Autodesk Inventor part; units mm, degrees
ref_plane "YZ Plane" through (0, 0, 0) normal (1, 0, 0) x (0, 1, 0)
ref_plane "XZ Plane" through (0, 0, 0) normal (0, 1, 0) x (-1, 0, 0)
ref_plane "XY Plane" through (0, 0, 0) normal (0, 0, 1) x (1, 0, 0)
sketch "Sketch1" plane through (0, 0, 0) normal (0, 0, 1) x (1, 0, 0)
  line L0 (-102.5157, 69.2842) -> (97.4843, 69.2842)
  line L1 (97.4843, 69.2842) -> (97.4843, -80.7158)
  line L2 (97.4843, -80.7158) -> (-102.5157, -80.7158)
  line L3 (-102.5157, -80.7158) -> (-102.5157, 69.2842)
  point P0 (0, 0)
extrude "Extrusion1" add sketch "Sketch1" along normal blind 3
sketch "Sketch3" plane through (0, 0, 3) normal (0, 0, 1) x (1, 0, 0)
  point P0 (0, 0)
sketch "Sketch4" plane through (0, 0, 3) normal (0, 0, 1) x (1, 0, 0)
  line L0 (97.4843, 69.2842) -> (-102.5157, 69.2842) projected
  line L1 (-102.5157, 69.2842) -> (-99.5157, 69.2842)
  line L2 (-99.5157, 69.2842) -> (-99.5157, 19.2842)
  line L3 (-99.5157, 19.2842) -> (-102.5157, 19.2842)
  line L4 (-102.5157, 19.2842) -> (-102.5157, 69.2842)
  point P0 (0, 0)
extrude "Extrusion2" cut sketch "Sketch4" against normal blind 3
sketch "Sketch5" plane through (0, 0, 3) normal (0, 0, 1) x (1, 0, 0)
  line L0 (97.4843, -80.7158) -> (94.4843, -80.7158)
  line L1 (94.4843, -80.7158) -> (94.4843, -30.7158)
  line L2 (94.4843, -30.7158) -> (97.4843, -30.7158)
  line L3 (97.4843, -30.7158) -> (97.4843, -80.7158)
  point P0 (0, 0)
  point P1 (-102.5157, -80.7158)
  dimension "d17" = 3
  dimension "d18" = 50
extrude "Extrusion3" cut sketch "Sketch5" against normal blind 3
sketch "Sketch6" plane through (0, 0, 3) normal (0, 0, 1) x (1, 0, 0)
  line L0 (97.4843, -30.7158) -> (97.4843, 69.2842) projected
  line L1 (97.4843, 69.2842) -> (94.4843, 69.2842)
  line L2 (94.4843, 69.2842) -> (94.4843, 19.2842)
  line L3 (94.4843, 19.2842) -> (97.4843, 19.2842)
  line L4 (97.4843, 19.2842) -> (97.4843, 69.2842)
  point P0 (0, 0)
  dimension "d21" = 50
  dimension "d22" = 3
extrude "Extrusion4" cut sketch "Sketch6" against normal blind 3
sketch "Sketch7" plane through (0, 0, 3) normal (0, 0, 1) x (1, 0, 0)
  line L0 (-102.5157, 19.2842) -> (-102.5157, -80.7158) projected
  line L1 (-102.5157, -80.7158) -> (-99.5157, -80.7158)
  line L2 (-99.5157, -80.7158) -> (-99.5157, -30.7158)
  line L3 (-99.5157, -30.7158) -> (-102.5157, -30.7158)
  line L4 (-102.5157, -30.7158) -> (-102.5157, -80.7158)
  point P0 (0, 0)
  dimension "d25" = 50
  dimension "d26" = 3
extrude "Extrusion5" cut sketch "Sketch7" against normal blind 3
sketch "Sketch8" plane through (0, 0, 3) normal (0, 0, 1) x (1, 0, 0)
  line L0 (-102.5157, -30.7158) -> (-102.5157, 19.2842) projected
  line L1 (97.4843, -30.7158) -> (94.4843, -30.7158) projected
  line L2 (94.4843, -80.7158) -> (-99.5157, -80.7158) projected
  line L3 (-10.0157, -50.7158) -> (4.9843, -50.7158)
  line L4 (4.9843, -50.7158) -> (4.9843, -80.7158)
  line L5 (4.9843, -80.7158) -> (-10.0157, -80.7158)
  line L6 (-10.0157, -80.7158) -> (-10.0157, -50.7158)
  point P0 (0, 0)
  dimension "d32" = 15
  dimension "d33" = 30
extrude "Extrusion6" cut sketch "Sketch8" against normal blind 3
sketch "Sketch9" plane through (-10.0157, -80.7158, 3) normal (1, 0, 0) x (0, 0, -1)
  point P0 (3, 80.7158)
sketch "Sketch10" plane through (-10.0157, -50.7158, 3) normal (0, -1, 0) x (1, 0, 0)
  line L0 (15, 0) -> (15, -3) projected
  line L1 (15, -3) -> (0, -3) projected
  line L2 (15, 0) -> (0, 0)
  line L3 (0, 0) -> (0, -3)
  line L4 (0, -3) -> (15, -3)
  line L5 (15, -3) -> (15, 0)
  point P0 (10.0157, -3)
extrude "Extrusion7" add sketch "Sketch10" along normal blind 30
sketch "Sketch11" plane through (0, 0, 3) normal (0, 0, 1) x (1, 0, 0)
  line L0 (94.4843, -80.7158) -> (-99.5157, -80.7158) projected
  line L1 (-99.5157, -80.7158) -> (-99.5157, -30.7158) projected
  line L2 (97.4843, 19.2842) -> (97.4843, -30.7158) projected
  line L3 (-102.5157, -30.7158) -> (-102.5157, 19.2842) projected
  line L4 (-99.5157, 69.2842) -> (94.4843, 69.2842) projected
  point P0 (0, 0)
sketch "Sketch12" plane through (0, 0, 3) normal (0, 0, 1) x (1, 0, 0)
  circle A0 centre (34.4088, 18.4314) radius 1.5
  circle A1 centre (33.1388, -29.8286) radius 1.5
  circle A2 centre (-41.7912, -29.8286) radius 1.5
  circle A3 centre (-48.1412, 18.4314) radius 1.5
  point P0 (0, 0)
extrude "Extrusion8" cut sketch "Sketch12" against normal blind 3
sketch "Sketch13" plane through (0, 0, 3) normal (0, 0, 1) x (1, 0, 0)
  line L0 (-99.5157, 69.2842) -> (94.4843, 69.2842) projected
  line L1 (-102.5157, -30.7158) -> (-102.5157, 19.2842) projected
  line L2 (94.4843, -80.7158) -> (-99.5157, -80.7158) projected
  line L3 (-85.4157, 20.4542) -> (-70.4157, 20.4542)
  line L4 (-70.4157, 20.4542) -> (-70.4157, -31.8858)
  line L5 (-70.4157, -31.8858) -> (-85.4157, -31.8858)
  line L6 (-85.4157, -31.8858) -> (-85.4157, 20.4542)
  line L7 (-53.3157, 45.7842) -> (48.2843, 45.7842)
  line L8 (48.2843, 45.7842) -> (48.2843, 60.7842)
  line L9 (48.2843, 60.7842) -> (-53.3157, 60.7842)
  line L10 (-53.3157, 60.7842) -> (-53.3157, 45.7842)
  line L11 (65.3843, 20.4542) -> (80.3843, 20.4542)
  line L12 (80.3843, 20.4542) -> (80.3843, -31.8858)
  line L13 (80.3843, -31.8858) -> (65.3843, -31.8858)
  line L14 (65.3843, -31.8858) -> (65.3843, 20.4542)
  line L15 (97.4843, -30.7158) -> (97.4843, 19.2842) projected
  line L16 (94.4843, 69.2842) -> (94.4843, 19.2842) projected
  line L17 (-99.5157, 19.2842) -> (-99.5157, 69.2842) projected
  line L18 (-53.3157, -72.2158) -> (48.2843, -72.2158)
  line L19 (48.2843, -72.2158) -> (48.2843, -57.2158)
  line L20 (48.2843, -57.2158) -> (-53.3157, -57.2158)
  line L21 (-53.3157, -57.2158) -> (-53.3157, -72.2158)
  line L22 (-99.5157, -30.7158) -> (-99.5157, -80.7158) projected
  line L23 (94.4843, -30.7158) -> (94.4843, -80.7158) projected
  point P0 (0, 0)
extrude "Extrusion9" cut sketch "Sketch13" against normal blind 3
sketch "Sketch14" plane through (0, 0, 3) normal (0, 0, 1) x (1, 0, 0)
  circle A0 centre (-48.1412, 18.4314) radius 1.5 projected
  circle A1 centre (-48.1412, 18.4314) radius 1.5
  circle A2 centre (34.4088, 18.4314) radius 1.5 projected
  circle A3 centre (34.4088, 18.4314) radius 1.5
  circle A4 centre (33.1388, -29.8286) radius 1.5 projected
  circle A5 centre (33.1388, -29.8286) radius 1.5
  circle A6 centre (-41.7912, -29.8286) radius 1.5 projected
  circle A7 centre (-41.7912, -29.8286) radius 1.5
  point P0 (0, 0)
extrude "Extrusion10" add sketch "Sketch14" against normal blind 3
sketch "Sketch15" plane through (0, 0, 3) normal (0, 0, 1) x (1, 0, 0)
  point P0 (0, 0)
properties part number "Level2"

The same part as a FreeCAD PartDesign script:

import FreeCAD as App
import Part
import Sketcher
Q = App.Units.Quantity

doc = App.newDocument("Part")
body = doc.addObject("PartDesign::Body", "Body")

# Sketch on XY plane
sketch1 = body.newObject("Sketcher::SketchObject", "Sketch")
sketch1.AttachmentSupport = (doc.getObject("XY_Plane"), [""])
sketch1.MapMode = "FlatFace"
sketch1.addGeometry(Part.LineSegment(App.Vector(97.4843, 69.2842, 0), App.Vector(-102.5157, 69.2842, 0)), False)
sketch1.addGeometry(Part.LineSegment(App.Vector(-102.5157, 69.2842, 0), App.Vector(-102.5157, -80.7158, 0)), False)
sketch1.addGeometry(Part.LineSegment(App.Vector(-102.5157, -80.7158, 0), App.Vector(97.4843, -80.7158, 0)), False)
sketch1.addGeometry(Part.LineSegment(App.Vector(97.4843, -80.7158, 0), App.Vector(97.4843, 69.2842, 0)), False)
sketch1.addConstraint(Sketcher.Constraint("Coincident", 0, 2, 1, 1))
sketch1.addConstraint(Sketcher.Constraint("Coincident", 1, 2, 2, 1))
sketch1.addConstraint(Sketcher.Constraint("Coincident", 2, 2, 3, 1))
sketch1.addConstraint(Sketcher.Constraint("Coincident", 3, 2, 0, 1))
sketch1.addConstraint(Sketcher.Constraint("Horizontal", 0))
sketch1.addConstraint(Sketcher.Constraint("Vertical", 1))
sketch1.addConstraint(Sketcher.Constraint("Horizontal", 2))
sketch1.addConstraint(Sketcher.Constraint("Vertical", 3))
sketch1.addConstraint(Sketcher.Constraint("DistanceX", 0, 2, 0, 1, Q("200 mm")))
sketch1.addConstraint(Sketcher.Constraint("DistanceY", 1, 2, 1, 1, Q("150 mm")))
sketch1.addConstraint(Sketcher.Constraint("DistanceX", 0, 2, -1, 1, Q("102.5157 mm")))
sketch1.addConstraint(Sketcher.Constraint("DistanceY", -1, 1, 0, 2, Q("69.2842 mm")))
pad1 = body.newObject("PartDesign::Pad", "Pad")
pad1.Profile = sketch1
pad1.Length = 3

# Sketch on XY plane
sketch2 = body.newObject("Sketcher::SketchObject", "Sketch001")
sketch2.AttachmentSupport = (doc.getObject("XY_Plane"), [""])
sketch2.MapMode = "FlatFace"
sketch2.AttachmentOffset = App.Placement(App.Vector(0, 0, 3), App.Rotation())
sketch2.addGeometry(Part.LineSegment(App.Vector(-99.5157, 19.2842, 0), App.Vector(-99.5157, 69.2842, 0)), False)
sketch2.addGeometry(Part.LineSegment(App.Vector(-99.5157, 69.2842, 0), App.Vector(-102.5157, 69.2842, 0)), False)
sketch2.addGeometry(Part.LineSegment(App.Vector(-102.5157, 69.2842, 0), App.Vector(-102.5157, 19.2842, 0)), False)
sketch2.addGeometry(Part.LineSegment(App.Vector(-102.5157, 19.2842, 0), App.Vector(-99.5157, 19.2842, 0)), False)
sketch2.addConstraint(Sketcher.Constraint("Coincident", 0, 2, 1, 1))
sketch2.addConstraint(Sketcher.Constraint("Coincident", 1, 2, 2, 1))
sketch2.addConstraint(Sketcher.Constraint("Coincident", 2, 2, 3, 1))
sketch2.addConstraint(Sketcher.Constraint("Coincident", 3, 2, 0, 1))
sketch2.addConstraint(Sketcher.Constraint("Vertical", 0))
sketch2.addConstraint(Sketcher.Constraint("Horizontal", 1))
sketch2.addConstraint(Sketcher.Constraint("Vertical", 2))
sketch2.addConstraint(Sketcher.Constraint("Horizontal", 3))
sketch2.addConstraint(Sketcher.Constraint("DistanceX", 1, 2, 1, 1, Q("3 mm")))
sketch2.addConstraint(Sketcher.Constraint("DistanceY", 0, 1, 0, 2, Q("50 mm")))
sketch2.addConstraint(Sketcher.Constraint("DistanceX", 0, 2, -1, 1, Q("99.5157 mm")))
sketch2.addConstraint(Sketcher.Constraint("DistanceY", -1, 1, 0, 2, Q("69.2842 mm")))
pocket1 = body.newObject("PartDesign::Pocket", "Pocket")
pocket1.Profile = sketch2
pocket1.Length = 3

# Sketch on XY plane
sketch3 = body.newObject("Sketcher::SketchObject", "Sketch002")
sketch3.AttachmentSupport = (doc.getObject("XY_Plane"), [""])
sketch3.MapMode = "FlatFace"
sketch3.AttachmentOffset = App.Placement(App.Vector(0, 0, 3), App.Rotation())
sketch3.addGeometry(Part.LineSegment(App.Vector(94.4843, -80.7158, 0), App.Vector(97.4843, -80.7158, 0)), False)
sketch3.addGeometry(Part.LineSegment(App.Vector(97.4843, -80.7158, 0), App.Vector(97.4843, -30.7158, 0)), False)
sketch3.addGeometry(Part.LineSegment(App.Vector(97.4843, -30.7158, 0), App.Vector(94.4843, -30.7158, 0)), False)
sketch3.addGeometry(Part.LineSegment(App.Vector(94.4843, -30.7158, 0), App.Vector(94.4843, -80.7158, 0)), False)
sketch3.addConstraint(Sketcher.Constraint("Coincident", 0, 2, 1, 1))
sketch3.addConstraint(Sketcher.Constraint("Coincident", 1, 2, 2, 1))
sketch3.addConstraint(Sketcher.Constraint("Coincident", 2, 2, 3, 1))
sketch3.addConstraint(Sketcher.Constraint("Coincident", 3, 2, 0, 1))
sketch3.addConstraint(Sketcher.Constraint("Horizontal", 0))
sketch3.addConstraint(Sketcher.Constraint("Vertical", 1))
sketch3.addConstraint(Sketcher.Constraint("Horizontal", 2))
sketch3.addConstraint(Sketcher.Constraint("Vertical", 3))
sketch3.addConstraint(Sketcher.Constraint("DistanceX", 0, 1, 0, 2, Q("3 mm")))
sketch3.addConstraint(Sketcher.Constraint("DistanceY", 1, 1, 1, 2, Q("50 mm")))
sketch3.addConstraint(Sketcher.Constraint("DistanceX", -1, 1, 0, 2, Q("97.4843 mm")))
sketch3.addConstraint(Sketcher.Constraint("DistanceY", 0, 2, -1, 1, Q("80.7158 mm")))
pocket2 = body.newObject("PartDesign::Pocket", "Pocket001")
pocket2.Profile = sketch3
pocket2.Length = 3

# Sketch on XY plane
sketch4 = body.newObject("Sketcher::SketchObject", "Sketch003")
sketch4.AttachmentSupport = (doc.getObject("XY_Plane"), [""])
sketch4.MapMode = "FlatFace"
sketch4.AttachmentOffset = App.Placement(App.Vector(0, 0, 3), App.Rotation())
sketch4.addGeometry(Part.LineSegment(App.Vector(94.4843, 19.2842, 0), App.Vector(97.4843, 19.2842, 0)), False)
sketch4.addGeometry(Part.LineSegment(App.Vector(97.4843, 19.2842, 0), App.Vector(97.4843, 69.2842, 0)), False)
sketch4.addGeometry(Part.LineSegment(App.Vector(97.4843, 69.2842, 0), App.Vector(94.4843, 69.2842, 0)), False)
sketch4.addGeometry(Part.LineSegment(App.Vector(94.4843, 69.2842, 0), App.Vector(94.4843, 19.2842, 0)), False)
sketch4.addConstraint(Sketcher.Constraint("Coincident", 0, 2, 1, 1))
sketch4.addConstraint(Sketcher.Constraint("Coincident", 1, 2, 2, 1))
sketch4.addConstraint(Sketcher.Constraint("Coincident", 2, 2, 3, 1))
sketch4.addConstraint(Sketcher.Constraint("Coincident", 3, 2, 0, 1))
sketch4.addConstraint(Sketcher.Constraint("Horizontal", 0))
sketch4.addConstraint(Sketcher.Constraint("Vertical", 1))
sketch4.addConstraint(Sketcher.Constraint("Horizontal", 2))
sketch4.addConstraint(Sketcher.Constraint("Vertical", 3))
sketch4.addConstraint(Sketcher.Constraint("DistanceX", 0, 1, 0, 2, Q("3 mm")))
sketch4.addConstraint(Sketcher.Constraint("DistanceY", 1, 1, 1, 2, Q("50 mm")))
sketch4.addConstraint(Sketcher.Constraint("DistanceX", -1, 1, 0, 2, Q("97.4843 mm")))
sketch4.addConstraint(Sketcher.Constraint("DistanceY", -1, 1, 0, 2, Q("19.2842 mm")))
pocket3 = body.newObject("PartDesign::Pocket", "Pocket002")
pocket3.Profile = sketch4
pocket3.Length = 3

# Sketch on XY plane
sketch5 = body.newObject("Sketcher::SketchObject", "Sketch004")
sketch5.AttachmentSupport = (doc.getObject("XY_Plane"), [""])
sketch5.MapMode = "FlatFace"
sketch5.AttachmentOffset = App.Placement(App.Vector(0, 0, 3), App.Rotation())
sketch5.addGeometry(Part.LineSegment(App.Vector(-99.5157, -30.7158, 0), App.Vector(-102.5157, -30.7158, 0)), False)
sketch5.addGeometry(Part.LineSegment(App.Vector(-102.5157, -30.7158, 0), App.Vector(-102.5157, -80.7158, 0)), False)
sketch5.addGeometry(Part.LineSegment(App.Vector(-102.5157, -80.7158, 0), App.Vector(-99.5157, -80.7158, 0)), False)
sketch5.addGeometry(Part.LineSegment(App.Vector(-99.5157, -80.7158, 0), App.Vector(-99.5157, -30.7158, 0)), False)
sketch5.addConstraint(Sketcher.Constraint("Coincident", 0, 2, 1, 1))
sketch5.addConstraint(Sketcher.Constraint("Coincident", 1, 2, 2, 1))
sketch5.addConstraint(Sketcher.Constraint("Coincident", 2, 2, 3, 1))
sketch5.addConstraint(Sketcher.Constraint("Coincident", 3, 2, 0, 1))
sketch5.addConstraint(Sketcher.Constraint("Horizontal", 0))
sketch5.addConstraint(Sketcher.Constraint("Vertical", 1))
sketch5.addConstraint(Sketcher.Constraint("Horizontal", 2))
sketch5.addConstraint(Sketcher.Constraint("Vertical", 3))
sketch5.addConstraint(Sketcher.Constraint("DistanceX", 0, 2, 0, 1, Q("3 mm")))
sketch5.addConstraint(Sketcher.Constraint("DistanceY", 1, 2, 1, 1, Q("50 mm")))
sketch5.addConstraint(Sketcher.Constraint("DistanceX", 0, 2, -1, 1, Q("102.5157 mm")))
sketch5.addConstraint(Sketcher.Constraint("DistanceY", 0, 2, -1, 1, Q("30.7158 mm")))
pocket4 = body.newObject("PartDesign::Pocket", "Pocket003")
pocket4.Profile = sketch5
pocket4.Length = 3

# Sketch on XY plane
sketch6 = body.newObject("Sketcher::SketchObject", "Sketch005")
sketch6.AttachmentSupport = (doc.getObject("XY_Plane"), [""])
sketch6.MapMode = "FlatFace"
sketch6.AttachmentOffset = App.Placement(App.Vector(0, 0, 3), App.Rotation())
sketch6.addGeometry(Part.LineSegment(App.Vector(-10.0157, -80.7158, 0), App.Vector(4.9843, -80.7158, 0)), False)
sketch6.addGeometry(Part.LineSegment(App.Vector(4.9843, -80.7158, 0), App.Vector(4.9843, -50.7158, 0)), False)
sketch6.addGeometry(Part.LineSegment(App.Vector(4.9843, -50.7158, 0), App.Vector(-10.0157, -50.7158, 0)), False)
sketch6.addGeometry(Part.LineSegment(App.Vector(-10.0157, -50.7158, 0), App.Vector(-10.0157, -80.7158, 0)), False)
sketch6.addConstraint(Sketcher.Constraint("Coincident", 0, 2, 1, 1))
sketch6.addConstraint(Sketcher.Constraint("Coincident", 1, 2, 2, 1))
sketch6.addConstraint(Sketcher.Constraint("Coincident", 2, 2, 3, 1))
sketch6.addConstraint(Sketcher.Constraint("Coincident", 3, 2, 0, 1))
sketch6.addConstraint(Sketcher.Constraint("Horizontal", 0))
sketch6.addConstraint(Sketcher.Constraint("Vertical", 1))
sketch6.addConstraint(Sketcher.Constraint("Horizontal", 2))
sketch6.addConstraint(Sketcher.Constraint("Vertical", 3))
sketch6.addConstraint(Sketcher.Constraint("DistanceX", 0, 1, 0, 2, Q("15 mm")))
sketch6.addConstraint(Sketcher.Constraint("DistanceY", 1, 1, 1, 2, Q("30 mm")))
sketch6.addConstraint(Sketcher.Constraint("DistanceX", -1, 1, 0, 2, Q("4.9843 mm")))
sketch6.addConstraint(Sketcher.Constraint("DistanceY", 0, 2, -1, 1, Q("80.7158 mm")))
pocket5 = body.newObject("PartDesign::Pocket", "Pocket004")
pocket5.Profile = sketch6
pocket5.Length = 3

# Sketch on XZ plane
sketch7 = body.newObject("Sketcher::SketchObject", "Sketch006")
sketch7.AttachmentSupport = (doc.getObject("XZ_Plane"), [""])
sketch7.MapMode = "FlatFace"
sketch7.AttachmentOffset = App.Placement(App.Vector(0, 0, 50.7158), App.Rotation())
sketch7.addGeometry(Part.LineSegment(App.Vector(4.9843, 0, 0), App.Vector(4.9843, 3, 0)), False)
sketch7.addGeometry(Part.LineSegment(App.Vector(4.9843, 3, 0), App.Vector(-10.0157, 3, 0)), False)
sketch7.addGeometry(Part.LineSegment(App.Vector(-10.0157, 3, 0), App.Vector(-10.0157, 0, 0)), False)
sketch7.addGeometry(Part.LineSegment(App.Vector(-10.0157, 0, 0), App.Vector(4.9843, 0, 0)), False)
sketch7.addConstraint(Sketcher.Constraint("Coincident", 0, 2, 1, 1))
sketch7.addConstraint(Sketcher.Constraint("Coincident", 1, 2, 2, 1))
sketch7.addConstraint(Sketcher.Constraint("Coincident", 2, 2, 3, 1))
sketch7.addConstraint(Sketcher.Constraint("Coincident", 3, 2, 0, 1))
sketch7.addConstraint(Sketcher.Constraint("Vertical", 0))
sketch7.addConstraint(Sketcher.Constraint("Horizontal", 1))
sketch7.addConstraint(Sketcher.Constraint("Vertical", 2))
sketch7.addConstraint(Sketcher.Constraint("Horizontal", 3))
sketch7.addConstraint(Sketcher.Constraint("PointOnObject", 2, 2, -1))
sketch7.addConstraint(Sketcher.Constraint("DistanceX", 1, 2, 1, 1, Q("15 mm")))
sketch7.addConstraint(Sketcher.Constraint("DistanceY", 0, 1, 0, 2, Q("3 mm")))
sketch7.addConstraint(Sketcher.Constraint("DistanceX", -1, 1, 0, 2, Q("4.9843 mm")))
pad2 = body.newObject("PartDesign::Pad", "Pad001")
pad2.Profile = sketch7
pad2.Length = 30

# Sketch on XY plane
sketch8 = body.newObject("Sketcher::SketchObject", "Sketch007")
sketch8.AttachmentSupport = (doc.getObject("XY_Plane"), [""])
sketch8.MapMode = "FlatFace"
sketch8.AttachmentOffset = App.Placement(App.Vector(0, 0, 3), App.Rotation())
sketch8.addGeometry(Part.Circle(App.Vector(34.4088, 18.4314, 0), App.Vector(0, 0, 1), 1.5), False)
sketch8.addGeometry(Part.Circle(App.Vector(33.1388, -29.8286, 0), App.Vector(0, 0, 1), 1.5), False)
sketch8.addGeometry(Part.Circle(App.Vector(-41.7912, -29.8286, 0), App.Vector(0, 0, 1), 1.5), False)
sketch8.addGeometry(Part.Circle(App.Vector(-48.1412, 18.4314, 0), App.Vector(0, 0, 1), 1.5), False)
sketch8.addConstraint(Sketcher.Constraint("Equal", 0, 1))
sketch8.addConstraint(Sketcher.Constraint("Equal", 1, 2))
sketch8.addConstraint(Sketcher.Constraint("Equal", 2, 3))
sketch8.addConstraint(Sketcher.Constraint("Horizontal", 1, 3, 2, 3))
sketch8.addConstraint(Sketcher.Constraint("Horizontal", 0, 3, 3, 3))
sketch8.addConstraint(Sketcher.Constraint("Diameter", 0, Q("3 mm")))
sketch8.addConstraint(Sketcher.Constraint("DistanceX", 2, 3, 0, 3, Q("76.2 mm")))
sketch8.addConstraint(Sketcher.Constraint("DistanceX", 1, 3, 0, 3, Q("1.27 mm")))
sketch8.addConstraint(Sketcher.Constraint("DistanceY", 1, 3, 0, 3, Q("48.26 mm")))
sketch8.addConstraint(Sketcher.Constraint("DistanceX", 3, 3, 2, 3, Q("6.35 mm")))
sketch8.addConstraint(Sketcher.Constraint("DistanceX", -1, 1, 0, 3, Q("34.4088 mm")))
sketch8.addConstraint(Sketcher.Constraint("DistanceY", -1, 1, 0, 3, Q("18.4314 mm")))
pocket6 = body.newObject("PartDesign::Pocket", "Pocket005")
pocket6.Profile = sketch8
pocket6.Length = 3

# Sketch on XY plane
sketch9 = body.newObject("Sketcher::SketchObject", "Sketch008")
sketch9.AttachmentSupport = (doc.getObject("XY_Plane"), [""])
sketch9.MapMode = "FlatFace"
sketch9.AttachmentOffset = App.Placement(App.Vector(0, 0, 3), App.Rotation())
sketch9.addGeometry(Part.LineSegment(App.Vector(-70.4157, 20.4542, 0), App.Vector(-85.4157, 20.4542, 0)), False)
sketch9.addGeometry(Part.LineSegment(App.Vector(-85.4157, 20.4542, 0), App.Vector(-85.4157, -31.8858, 0)), False)
sketch9.addGeometry(Part.LineSegment(App.Vector(-85.4157, -31.8858, 0), App.Vector(-70.4157, -31.8858, 0)), False)
sketch9.addGeometry(Part.LineSegment(App.Vector(-70.4157, -31.8858, 0), App.Vector(-70.4157, 20.4542, 0)), False)
sketch9.addGeometry(Part.LineSegment(App.Vector(-53.3157, 60.7842, 0), App.Vector(-53.3157, 45.7842, 0)), False)
sketch9.addGeometry(Part.LineSegment(App.Vector(-53.3157, 45.7842, 0), App.Vector(48.2843, 45.7842, 0)), False)
sketch9.addGeometry(Part.LineSegment(App.Vector(48.2843, 45.7842, 0), App.Vector(48.2843, 60.7842, 0)), False)
sketch9.addGeometry(Part.LineSegment(App.Vector(48.2843, 60.7842, 0), App.Vector(-53.3157, 60.7842, 0)), False)
sketch9.addGeometry(Part.LineSegment(App.Vector(80.3843, 20.4542, 0), App.Vector(65.3843, 20.4542, 0)), False)
sketch9.addGeometry(Part.LineSegment(App.Vector(65.3843, 20.4542, 0), App.Vector(65.3843, -31.8858, 0)), False)
sketch9.addGeometry(Part.LineSegment(App.Vector(65.3843, -31.8858, 0), App.Vector(80.3843, -31.8858, 0)), False)
sketch9.addGeometry(Part.LineSegment(App.Vector(80.3843, -31.8858, 0), App.Vector(80.3843, 20.4542, 0)), False)
sketch9.addGeometry(Part.LineSegment(App.Vector(-53.3157, -57.2158, 0), App.Vector(-53.3157, -72.2158, 0)), False)
sketch9.addGeometry(Part.LineSegment(App.Vector(-53.3157, -72.2158, 0), App.Vector(48.2843, -72.2158, 0)), False)
sketch9.addGeometry(Part.LineSegment(App.Vector(48.2843, -72.2158, 0), App.Vector(48.2843, -57.2158, 0)), False)
sketch9.addGeometry(Part.LineSegment(App.Vector(48.2843, -57.2158, 0), App.Vector(-53.3157, -57.2158, 0)), False)
sketch9.addConstraint(Sketcher.Constraint("Coincident", 0, 2, 1, 1))
sketch9.addConstraint(Sketcher.Constraint("Coincident", 1, 2, 2, 1))
sketch9.addConstraint(Sketcher.Constraint("Coincident", 2, 2, 3, 1))
sketch9.addConstraint(Sketcher.Constraint("Coincident", 3, 2, 0, 1))
sketch9.addConstraint(Sketcher.Constraint("Coincident", 4, 2, 5, 1))
sketch9.addConstraint(Sketcher.Constraint("Coincident", 5, 2, 6, 1))
sketch9.addConstraint(Sketcher.Constraint("Coincident", 6, 2, 7, 1))
sketch9.addConstraint(Sketcher.Constraint("Coincident", 7, 2, 4, 1))
sketch9.addConstraint(Sketcher.Constraint("Coincident", 8, 2, 9, 1))
sketch9.addConstraint(Sketcher.Constraint("Coincident", 9, 2, 10, 1))
sketch9.addConstraint(Sketcher.Constraint("Coincident", 10, 2, 11, 1))
sketch9.addConstraint(Sketcher.Constraint("Coincident", 11, 2, 8, 1))
sketch9.addConstraint(Sketcher.Constraint("Coincident", 12, 2, 13, 1))
sketch9.addConstraint(Sketcher.Constraint("Coincident", 13, 2, 14, 1))
sketch9.addConstraint(Sketcher.Constraint("Coincident", 14, 2, 15, 1))
sketch9.addConstraint(Sketcher.Constraint("Coincident", 15, 2, 12, 1))
sketch9.addConstraint(Sketcher.Constraint("Horizontal", 0))
sketch9.addConstraint(Sketcher.Constraint("Vertical", 1))
sketch9.addConstraint(Sketcher.Constraint("Horizontal", 2))
sketch9.addConstraint(Sketcher.Constraint("Vertical", 3))
sketch9.addConstraint(Sketcher.Constraint("Vertical", 4))
sketch9.addConstraint(Sketcher.Constraint("Horizontal", 5))
sketch9.addConstraint(Sketcher.Constraint("Vertical", 6))
sketch9.addConstraint(Sketcher.Constraint("Horizontal", 7))
sketch9.addConstraint(Sketcher.Constraint("Horizontal", 8))
sketch9.addConstraint(Sketcher.Constraint("Vertical", 9))
sketch9.addConstraint(Sketcher.Constraint("Horizontal", 10))
sketch9.addConstraint(Sketcher.Constraint("Vertical", 11))
sketch9.addConstraint(Sketcher.Constraint("Vertical", 12))
sketch9.addConstraint(Sketcher.Constraint("Horizontal", 13))
sketch9.addConstraint(Sketcher.Constraint("Vertical", 14))
sketch9.addConstraint(Sketcher.Constraint("Horizontal", 15))
sketch9.addConstraint(Sketcher.Constraint("Horizontal", 3, 2, 8, 2))
sketch9.addConstraint(Sketcher.Constraint("Horizontal", 2, 2, 9, 2))
sketch9.addConstraint(Sketcher.Constraint("Vertical", 7, 2, 12, 2))
sketch9.addConstraint(Sketcher.Constraint("Vertical", 6, 2, 13, 2))
sketch9.addConstraint(Sketcher.Constraint("Equal", 2, 8))
sketch9.addConstraint(Sketcher.Constraint("Equal", 10, 4))
sketch9.addConstraint(Sketcher.Constraint("Equal", 6, 12))
sketch9.addConstraint(Sketcher.Constraint("DistanceX", 0, 2, 0, 1, Q("15 mm")))
sketch9.addConstraint(Sketcher.Constraint("DistanceX", 5, 1, 5, 2, Q("101.6 mm")))
sketch9.addConstraint(Sketcher.Constraint("DistanceY", 12, 2, 4, 2, Q("118 mm")))
sketch9.addConstraint(Sketcher.Constraint("DistanceY", 1, 2, 1, 1, Q("52.34 mm")))
sketch9.addConstraint(Sketcher.Constraint("DistanceX", 3, 2, 4, 2, Q("17.1 mm")))
sketch9.addConstraint(Sketcher.Constraint("DistanceX", 5, 2, 8, 2, Q("17.1 mm")))
sketch9.addConstraint(Sketcher.Constraint("DistanceY", 3, 2, 4, 2, Q("25.33 mm")))
sketch9.addConstraint(Sketcher.Constraint("DistanceX", 0, 2, -1, 1, Q("85.4157 mm")))
sketch9.addConstraint(Sketcher.Constraint("DistanceY", -1, 1, 0, 2, Q("20.4542 mm")))
pocket7 = body.newObject("PartDesign::Pocket", "Pocket006")
pocket7.Profile = sketch9
pocket7.Length = 3

# Sketch on XY plane
sketch10 = body.newObject("Sketcher::SketchObject", "Sketch009")
sketch10.AttachmentSupport = (doc.getObject("XY_Plane"), [""])
sketch10.MapMode = "FlatFace"
sketch10.AttachmentOffset = App.Placement(App.Vector(0, 0, 3), App.Rotation())
sketch10.addGeometry(Part.Circle(App.Vector(-48.1412, 18.4314, 0), App.Vector(0, 0, 1), 1.5), False)
sketch10.addGeometry(Part.Circle(App.Vector(34.4088, 18.4314, 0), App.Vector(0, 0, 1), 1.5), False)
sketch10.addGeometry(Part.Circle(App.Vector(33.1388, -29.8286, 0), App.Vector(0, 0, 1), 1.5), False)
sketch10.addGeometry(Part.Circle(App.Vector(-41.7912, -29.8286, 0), App.Vector(0, 0, 1), 1.5), False)
sketch10.addConstraint(Sketcher.Constraint("Equal", 0, 1))
sketch10.addConstraint(Sketcher.Constraint("Equal", 1, 2))
sketch10.addConstraint(Sketcher.Constraint("Equal", 2, 3))
sketch10.addConstraint(Sketcher.Constraint("Horizontal", 0, 3, 1, 3))
sketch10.addConstraint(Sketcher.Constraint("Horizontal", 2, 3, 3, 3))
sketch10.addConstraint(Sketcher.Constraint("Diameter", 0, Q("3 mm")))
sketch10.addConstraint(Sketcher.Constraint("DistanceX", 3, 3, 1, 3, Q("76.2 mm")))
sketch10.addConstraint(Sketcher.Constraint("DistanceX", 0, 3, 1, 3, Q("82.55 mm")))
sketch10.addConstraint(Sketcher.Constraint("DistanceX", 2, 3, 1, 3, Q("1.27 mm")))
sketch10.addConstraint(Sketcher.Constraint("DistanceY", 2, 3, 1, 3, Q("48.26 mm")))
sketch10.addConstraint(Sketcher.Constraint("DistanceX", 0, 3, -1, 1, Q("48.1412 mm")))
sketch10.addConstraint(Sketcher.Constraint("DistanceY", -1, 1, 0, 3, Q("18.4314 mm")))
pad3 = body.newObject("PartDesign::Pad", "Pad002")
pad3.Profile = sketch10
pad3.Length = 3
pad3.Reversed = True

doc.recompute()
